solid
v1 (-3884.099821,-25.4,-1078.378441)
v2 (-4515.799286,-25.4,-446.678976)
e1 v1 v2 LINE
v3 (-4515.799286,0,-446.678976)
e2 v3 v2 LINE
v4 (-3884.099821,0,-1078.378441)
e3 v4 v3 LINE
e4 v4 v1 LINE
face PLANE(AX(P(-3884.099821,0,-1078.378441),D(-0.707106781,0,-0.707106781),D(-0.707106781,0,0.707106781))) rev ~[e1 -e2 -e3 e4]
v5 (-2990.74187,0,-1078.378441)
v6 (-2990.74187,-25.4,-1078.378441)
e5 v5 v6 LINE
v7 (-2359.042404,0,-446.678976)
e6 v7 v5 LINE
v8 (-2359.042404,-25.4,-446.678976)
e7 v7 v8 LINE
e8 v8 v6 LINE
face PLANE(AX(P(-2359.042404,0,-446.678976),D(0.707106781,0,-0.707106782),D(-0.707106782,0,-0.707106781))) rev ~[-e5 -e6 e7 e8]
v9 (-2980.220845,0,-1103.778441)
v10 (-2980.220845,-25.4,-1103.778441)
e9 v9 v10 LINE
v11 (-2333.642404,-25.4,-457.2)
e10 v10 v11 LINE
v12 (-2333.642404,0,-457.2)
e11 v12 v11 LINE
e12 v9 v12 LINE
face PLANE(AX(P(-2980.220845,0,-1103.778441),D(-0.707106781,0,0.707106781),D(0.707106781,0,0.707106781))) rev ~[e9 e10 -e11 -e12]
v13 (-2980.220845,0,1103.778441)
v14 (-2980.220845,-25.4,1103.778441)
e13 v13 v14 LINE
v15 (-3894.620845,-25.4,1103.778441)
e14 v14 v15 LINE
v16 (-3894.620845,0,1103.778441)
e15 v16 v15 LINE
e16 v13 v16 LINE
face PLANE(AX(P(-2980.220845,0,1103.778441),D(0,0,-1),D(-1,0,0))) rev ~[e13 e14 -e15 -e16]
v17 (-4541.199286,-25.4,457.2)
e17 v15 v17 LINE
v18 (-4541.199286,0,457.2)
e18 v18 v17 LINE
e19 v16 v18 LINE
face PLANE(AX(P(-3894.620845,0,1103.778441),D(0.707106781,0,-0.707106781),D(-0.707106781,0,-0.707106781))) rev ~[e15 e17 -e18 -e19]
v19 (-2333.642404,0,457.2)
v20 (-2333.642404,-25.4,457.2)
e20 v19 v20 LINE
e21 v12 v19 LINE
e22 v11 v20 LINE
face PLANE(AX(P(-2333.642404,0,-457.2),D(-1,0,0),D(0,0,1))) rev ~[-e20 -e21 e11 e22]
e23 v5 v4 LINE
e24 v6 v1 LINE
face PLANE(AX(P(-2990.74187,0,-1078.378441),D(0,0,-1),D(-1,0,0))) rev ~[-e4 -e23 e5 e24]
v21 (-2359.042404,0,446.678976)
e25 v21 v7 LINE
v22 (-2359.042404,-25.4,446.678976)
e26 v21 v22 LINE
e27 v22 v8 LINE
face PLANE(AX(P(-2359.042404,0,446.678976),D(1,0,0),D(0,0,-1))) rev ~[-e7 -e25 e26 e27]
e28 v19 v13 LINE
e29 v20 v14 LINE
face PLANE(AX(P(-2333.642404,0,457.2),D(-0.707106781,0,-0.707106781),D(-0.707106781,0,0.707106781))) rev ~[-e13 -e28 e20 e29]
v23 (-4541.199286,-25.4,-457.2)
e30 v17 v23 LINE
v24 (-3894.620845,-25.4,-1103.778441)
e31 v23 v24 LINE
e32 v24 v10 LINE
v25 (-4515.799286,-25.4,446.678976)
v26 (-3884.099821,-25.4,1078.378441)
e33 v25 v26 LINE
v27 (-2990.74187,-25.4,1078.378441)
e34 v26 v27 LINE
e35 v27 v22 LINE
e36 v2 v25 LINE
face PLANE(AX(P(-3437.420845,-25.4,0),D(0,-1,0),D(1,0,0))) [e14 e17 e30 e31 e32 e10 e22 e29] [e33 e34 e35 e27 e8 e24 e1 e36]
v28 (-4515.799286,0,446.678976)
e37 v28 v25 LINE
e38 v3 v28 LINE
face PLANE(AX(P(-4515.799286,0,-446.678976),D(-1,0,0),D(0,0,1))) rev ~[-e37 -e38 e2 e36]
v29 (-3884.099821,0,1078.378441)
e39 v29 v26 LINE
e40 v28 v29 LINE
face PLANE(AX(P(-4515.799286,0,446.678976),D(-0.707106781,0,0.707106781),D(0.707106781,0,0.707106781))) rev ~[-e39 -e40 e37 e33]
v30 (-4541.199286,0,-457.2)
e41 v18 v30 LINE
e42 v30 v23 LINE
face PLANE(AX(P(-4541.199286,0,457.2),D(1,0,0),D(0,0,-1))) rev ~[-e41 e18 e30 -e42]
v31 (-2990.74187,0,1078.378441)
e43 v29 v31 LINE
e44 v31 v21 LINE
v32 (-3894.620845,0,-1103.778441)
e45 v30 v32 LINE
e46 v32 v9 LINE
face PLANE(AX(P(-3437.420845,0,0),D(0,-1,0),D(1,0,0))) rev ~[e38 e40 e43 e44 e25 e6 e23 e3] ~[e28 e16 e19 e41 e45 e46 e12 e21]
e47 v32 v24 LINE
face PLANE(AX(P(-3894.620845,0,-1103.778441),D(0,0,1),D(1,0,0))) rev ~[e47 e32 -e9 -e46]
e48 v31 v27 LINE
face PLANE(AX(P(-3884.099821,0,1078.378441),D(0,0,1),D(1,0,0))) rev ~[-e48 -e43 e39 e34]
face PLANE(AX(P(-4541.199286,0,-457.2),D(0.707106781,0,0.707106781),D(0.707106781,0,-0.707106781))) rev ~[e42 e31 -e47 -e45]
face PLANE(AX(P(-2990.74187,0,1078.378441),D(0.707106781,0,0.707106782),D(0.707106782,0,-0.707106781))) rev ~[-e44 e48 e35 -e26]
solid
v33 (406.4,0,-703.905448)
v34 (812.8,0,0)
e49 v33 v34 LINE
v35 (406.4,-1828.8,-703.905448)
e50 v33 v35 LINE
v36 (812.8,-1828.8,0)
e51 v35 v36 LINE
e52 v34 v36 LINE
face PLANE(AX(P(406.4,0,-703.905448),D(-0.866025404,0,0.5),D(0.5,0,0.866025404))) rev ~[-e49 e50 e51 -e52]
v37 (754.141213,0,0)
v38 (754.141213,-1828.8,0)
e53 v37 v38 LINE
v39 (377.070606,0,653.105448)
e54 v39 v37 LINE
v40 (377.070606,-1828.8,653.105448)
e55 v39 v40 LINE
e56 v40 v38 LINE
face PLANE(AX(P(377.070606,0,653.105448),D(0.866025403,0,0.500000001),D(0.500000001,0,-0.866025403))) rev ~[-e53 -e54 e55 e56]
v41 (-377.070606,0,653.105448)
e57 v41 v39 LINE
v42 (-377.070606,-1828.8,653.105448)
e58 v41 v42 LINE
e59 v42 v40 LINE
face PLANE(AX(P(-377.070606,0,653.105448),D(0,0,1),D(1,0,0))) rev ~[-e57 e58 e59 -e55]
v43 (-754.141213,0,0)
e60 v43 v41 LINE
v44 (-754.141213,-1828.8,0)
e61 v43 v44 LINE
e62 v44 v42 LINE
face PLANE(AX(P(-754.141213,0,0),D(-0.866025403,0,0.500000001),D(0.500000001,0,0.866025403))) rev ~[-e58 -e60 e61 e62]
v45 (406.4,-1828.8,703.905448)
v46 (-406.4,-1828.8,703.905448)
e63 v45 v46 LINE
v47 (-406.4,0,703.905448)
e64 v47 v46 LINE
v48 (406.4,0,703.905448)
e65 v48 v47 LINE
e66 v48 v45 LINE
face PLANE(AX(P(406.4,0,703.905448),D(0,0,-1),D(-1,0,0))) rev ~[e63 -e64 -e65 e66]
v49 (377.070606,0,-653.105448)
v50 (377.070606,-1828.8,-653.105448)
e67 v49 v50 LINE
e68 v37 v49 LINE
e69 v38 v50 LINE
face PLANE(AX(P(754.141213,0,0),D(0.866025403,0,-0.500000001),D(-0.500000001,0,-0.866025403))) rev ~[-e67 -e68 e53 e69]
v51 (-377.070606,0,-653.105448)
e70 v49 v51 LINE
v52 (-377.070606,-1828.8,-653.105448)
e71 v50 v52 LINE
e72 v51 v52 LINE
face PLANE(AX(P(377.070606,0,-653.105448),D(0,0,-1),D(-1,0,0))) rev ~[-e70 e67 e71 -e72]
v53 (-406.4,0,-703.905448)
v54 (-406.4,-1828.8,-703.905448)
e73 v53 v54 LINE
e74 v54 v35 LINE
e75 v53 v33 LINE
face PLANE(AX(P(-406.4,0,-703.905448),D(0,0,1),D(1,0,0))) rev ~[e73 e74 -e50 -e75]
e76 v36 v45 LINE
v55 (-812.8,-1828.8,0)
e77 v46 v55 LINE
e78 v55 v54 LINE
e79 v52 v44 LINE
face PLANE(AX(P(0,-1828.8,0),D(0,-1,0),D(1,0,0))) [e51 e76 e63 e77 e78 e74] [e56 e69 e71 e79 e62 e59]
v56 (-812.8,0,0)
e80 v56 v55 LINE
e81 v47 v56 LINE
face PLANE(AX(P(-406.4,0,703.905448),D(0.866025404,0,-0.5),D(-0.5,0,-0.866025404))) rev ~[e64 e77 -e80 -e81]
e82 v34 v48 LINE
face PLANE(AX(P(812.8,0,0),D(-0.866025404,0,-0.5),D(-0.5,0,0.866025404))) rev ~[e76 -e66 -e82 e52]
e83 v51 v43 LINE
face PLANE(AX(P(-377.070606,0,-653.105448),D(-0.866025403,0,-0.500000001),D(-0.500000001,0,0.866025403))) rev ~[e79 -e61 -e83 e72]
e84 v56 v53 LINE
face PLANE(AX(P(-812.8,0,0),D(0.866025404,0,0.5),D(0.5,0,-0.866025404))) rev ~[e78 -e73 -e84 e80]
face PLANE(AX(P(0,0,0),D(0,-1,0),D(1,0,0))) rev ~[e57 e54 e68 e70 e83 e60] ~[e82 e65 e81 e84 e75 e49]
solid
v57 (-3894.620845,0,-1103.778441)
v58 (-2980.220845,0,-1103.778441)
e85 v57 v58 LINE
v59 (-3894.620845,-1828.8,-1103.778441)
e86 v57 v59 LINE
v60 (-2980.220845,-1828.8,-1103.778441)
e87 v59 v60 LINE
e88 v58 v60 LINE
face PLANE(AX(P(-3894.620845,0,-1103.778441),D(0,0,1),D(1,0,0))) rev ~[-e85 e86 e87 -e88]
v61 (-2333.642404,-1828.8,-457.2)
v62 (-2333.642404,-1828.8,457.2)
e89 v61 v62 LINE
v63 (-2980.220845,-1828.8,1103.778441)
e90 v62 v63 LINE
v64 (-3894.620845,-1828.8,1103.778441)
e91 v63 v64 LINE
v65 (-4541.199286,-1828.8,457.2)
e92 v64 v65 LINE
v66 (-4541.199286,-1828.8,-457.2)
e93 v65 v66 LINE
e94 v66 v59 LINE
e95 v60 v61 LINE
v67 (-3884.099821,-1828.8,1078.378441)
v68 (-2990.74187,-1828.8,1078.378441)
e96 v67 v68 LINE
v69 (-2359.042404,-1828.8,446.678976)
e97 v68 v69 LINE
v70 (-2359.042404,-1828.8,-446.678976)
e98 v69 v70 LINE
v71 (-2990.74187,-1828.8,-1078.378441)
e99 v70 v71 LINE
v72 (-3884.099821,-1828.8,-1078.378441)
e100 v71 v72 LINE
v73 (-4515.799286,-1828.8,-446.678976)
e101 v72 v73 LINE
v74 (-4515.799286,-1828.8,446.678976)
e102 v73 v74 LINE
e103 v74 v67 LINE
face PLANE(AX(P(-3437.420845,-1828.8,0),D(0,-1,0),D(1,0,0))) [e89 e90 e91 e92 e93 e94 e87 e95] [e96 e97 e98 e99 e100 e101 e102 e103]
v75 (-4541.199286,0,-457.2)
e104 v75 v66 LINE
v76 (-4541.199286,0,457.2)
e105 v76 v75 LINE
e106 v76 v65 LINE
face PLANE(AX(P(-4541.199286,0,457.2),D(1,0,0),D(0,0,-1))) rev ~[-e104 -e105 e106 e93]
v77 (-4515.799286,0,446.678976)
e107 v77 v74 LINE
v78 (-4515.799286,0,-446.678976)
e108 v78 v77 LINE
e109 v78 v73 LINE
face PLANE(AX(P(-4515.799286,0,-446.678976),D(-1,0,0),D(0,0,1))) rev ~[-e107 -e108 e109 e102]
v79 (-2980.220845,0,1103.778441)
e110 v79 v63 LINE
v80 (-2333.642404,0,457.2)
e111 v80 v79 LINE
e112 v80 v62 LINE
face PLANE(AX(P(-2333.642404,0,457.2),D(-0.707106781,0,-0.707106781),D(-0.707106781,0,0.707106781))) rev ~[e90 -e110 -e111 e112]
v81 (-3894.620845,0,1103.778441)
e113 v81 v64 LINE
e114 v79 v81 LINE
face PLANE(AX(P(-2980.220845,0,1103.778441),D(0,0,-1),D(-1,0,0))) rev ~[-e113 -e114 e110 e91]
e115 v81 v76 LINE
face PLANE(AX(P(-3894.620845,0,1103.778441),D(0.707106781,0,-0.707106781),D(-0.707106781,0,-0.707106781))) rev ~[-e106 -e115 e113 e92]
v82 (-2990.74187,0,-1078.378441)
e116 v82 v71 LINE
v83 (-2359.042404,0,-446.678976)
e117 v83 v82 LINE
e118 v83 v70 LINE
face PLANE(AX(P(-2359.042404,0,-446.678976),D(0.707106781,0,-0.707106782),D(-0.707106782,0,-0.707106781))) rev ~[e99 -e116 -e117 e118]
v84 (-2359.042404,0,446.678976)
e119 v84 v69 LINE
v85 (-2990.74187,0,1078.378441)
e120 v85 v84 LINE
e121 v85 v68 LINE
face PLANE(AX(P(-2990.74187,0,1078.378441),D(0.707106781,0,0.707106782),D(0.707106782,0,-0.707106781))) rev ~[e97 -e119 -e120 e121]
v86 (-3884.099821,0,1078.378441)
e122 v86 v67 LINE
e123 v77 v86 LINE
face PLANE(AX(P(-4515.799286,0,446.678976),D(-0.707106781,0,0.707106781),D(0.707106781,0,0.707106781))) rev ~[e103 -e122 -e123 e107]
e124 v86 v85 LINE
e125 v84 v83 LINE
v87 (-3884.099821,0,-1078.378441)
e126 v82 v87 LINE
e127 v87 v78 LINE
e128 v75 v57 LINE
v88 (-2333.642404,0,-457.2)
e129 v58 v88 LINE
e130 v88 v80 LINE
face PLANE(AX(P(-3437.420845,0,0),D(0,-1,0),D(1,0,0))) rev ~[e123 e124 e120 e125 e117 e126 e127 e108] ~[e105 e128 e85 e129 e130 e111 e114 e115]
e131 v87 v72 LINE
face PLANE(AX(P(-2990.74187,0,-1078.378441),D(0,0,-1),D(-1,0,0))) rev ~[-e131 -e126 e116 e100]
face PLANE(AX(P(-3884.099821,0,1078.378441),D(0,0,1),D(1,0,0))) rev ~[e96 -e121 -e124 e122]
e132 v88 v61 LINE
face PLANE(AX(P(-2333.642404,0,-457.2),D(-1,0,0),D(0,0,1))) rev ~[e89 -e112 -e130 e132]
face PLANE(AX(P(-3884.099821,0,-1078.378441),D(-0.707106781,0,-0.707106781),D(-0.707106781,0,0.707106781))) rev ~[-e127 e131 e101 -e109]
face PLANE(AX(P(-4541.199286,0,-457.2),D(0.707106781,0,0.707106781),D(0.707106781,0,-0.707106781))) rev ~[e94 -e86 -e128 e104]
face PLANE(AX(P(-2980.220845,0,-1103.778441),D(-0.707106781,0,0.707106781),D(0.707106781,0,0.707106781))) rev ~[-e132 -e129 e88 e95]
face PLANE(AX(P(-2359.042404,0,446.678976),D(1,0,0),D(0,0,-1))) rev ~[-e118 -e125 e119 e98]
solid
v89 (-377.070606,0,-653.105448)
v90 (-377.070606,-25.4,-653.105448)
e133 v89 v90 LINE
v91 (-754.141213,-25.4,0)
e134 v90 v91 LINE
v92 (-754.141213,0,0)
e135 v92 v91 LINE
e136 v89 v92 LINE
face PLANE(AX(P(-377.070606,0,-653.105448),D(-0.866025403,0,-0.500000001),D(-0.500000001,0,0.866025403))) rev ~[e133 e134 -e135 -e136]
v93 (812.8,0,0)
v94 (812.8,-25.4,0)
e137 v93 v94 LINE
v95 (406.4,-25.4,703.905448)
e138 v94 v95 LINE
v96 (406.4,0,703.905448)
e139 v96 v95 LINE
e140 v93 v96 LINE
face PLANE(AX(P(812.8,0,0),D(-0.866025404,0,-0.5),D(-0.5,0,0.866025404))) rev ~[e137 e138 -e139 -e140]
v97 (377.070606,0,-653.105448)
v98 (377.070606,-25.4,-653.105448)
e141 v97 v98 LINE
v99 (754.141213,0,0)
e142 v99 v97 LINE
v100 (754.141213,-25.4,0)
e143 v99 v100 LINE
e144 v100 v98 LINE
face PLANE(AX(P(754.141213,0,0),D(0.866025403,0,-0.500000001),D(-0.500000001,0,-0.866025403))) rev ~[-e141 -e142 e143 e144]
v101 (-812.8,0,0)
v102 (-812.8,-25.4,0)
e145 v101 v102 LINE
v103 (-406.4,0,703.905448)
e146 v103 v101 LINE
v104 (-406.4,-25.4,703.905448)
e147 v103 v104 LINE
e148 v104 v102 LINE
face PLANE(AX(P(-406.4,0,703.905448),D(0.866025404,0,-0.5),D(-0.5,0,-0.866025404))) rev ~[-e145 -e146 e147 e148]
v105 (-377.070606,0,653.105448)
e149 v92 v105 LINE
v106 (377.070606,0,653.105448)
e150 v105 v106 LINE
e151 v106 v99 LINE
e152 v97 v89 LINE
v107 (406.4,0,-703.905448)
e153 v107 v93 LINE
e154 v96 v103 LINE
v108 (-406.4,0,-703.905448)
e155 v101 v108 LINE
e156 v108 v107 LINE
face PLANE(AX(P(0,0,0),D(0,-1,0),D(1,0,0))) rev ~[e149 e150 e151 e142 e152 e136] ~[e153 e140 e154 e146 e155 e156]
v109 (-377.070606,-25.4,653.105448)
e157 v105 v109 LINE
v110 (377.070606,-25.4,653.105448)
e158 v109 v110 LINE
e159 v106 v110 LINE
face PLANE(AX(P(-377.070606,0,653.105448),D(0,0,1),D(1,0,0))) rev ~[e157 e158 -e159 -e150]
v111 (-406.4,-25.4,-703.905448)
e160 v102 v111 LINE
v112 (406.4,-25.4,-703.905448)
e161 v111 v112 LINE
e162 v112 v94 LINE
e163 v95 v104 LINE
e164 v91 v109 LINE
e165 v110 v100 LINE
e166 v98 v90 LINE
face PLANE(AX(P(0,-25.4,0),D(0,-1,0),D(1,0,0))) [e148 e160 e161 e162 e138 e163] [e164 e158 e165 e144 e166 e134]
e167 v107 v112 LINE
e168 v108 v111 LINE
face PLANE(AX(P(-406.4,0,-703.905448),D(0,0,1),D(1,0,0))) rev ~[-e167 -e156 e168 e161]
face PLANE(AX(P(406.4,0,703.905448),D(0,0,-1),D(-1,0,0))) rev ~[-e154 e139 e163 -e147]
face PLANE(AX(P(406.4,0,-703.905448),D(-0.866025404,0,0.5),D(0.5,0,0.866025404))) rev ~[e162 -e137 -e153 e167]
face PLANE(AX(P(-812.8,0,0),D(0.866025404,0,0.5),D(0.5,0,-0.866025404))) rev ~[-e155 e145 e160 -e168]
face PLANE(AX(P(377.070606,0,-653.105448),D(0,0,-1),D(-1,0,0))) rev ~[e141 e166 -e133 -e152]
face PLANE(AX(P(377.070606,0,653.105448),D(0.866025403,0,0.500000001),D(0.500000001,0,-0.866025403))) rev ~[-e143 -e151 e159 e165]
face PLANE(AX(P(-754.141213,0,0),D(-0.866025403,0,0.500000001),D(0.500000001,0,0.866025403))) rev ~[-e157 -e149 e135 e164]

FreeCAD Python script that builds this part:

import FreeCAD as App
import Part
import Sketcher
Q = App.Units.Quantity


def add_polygon(sketch, points):
    """Adds a closed chain of lines whose ends are joined by coincident constraints."""
    first, n = sketch.GeometryCount, len(points)
    for a, b in zip(points, points[1:] + points[:1]):
        sketch.addGeometry(Part.LineSegment(App.Vector(*a, 0), App.Vector(*b, 0)), False)
    for i in range(n):
        sketch.addConstraint(Sketcher.Constraint("Coincident", first + i, 2, first + (i + 1) % n, 1))

doc = App.newDocument("Part")
params = doc.addObject("Spreadsheet::Sheet", "Params")
for row, (alias, value) in enumerate([
    ("sketch1_width", "32 in"),
    ("sketch1_width2", "36 in"),
    ("sketch1_length", "32 in"),
    ("sketch1_length2", "36 in"),
    ("pad1_length", "72 in"),
    ("sketch2_width", "32 in"),
    ("sketch2_width2", "36 in"),
    ("sketch2_length", "32 in"),
    ("sketch2_length2", "36 in"),
    ("pad2_length", "1 in"),
], start=1):
    params.set(f"A{row}", alias)
    params.set(f"B{row}", "=" + value)
    params.setAlias(f"B{row}", alias)

body = doc.addObject("PartDesign::Body", "Body")
body.AllowCompound = True

# Sketch on XZ plane
sketch1 = doc.addObject("Sketcher::SketchObject", "Sketch")
body.addObject(sketch1)
sketch1.AttachmentSupport = (doc.XZ_Plane, [""])
sketch1.MapMode = "FlatFace"
add_polygon(sketch1, [(406, -704), (813, 0), (406, 704), (-406, 704), (-813, 0), (-406, -704)])  # lines 0-5
add_polygon(sketch1, [(377, -653), (-377, -653), (-754, 0), (-377, 653), (377, 653), (754, 0)])  # lines 6-11
add_polygon(sketch1, [(-3895, -1104), (-2980, -1104), (-2334, -457), (-2334, 457), (-2980, 1104), (-3895, 1104), (-4541, 457), (-4541, -457)])  # lines 12-19
add_polygon(sketch1, [(-3884, -1078), (-4516, -447), (-4516, 447), (-3884, 1078), (-2991, 1078), (-2359, 447), (-2359, -447), (-2991, -1078)])  # lines 20-27
sketch1.addConstraint(Sketcher.Constraint("Horizontal", 2))
sketch1.addConstraint(Sketcher.Constraint("Horizontal", 5))
sketch1.addConstraint(Sketcher.Constraint("Horizontal", 6))
sketch1.addConstraint(Sketcher.Constraint("Horizontal", 9))
sketch1.addConstraint(Sketcher.Constraint("Horizontal", 12))
sketch1.addConstraint(Sketcher.Constraint("Vertical", 14))
sketch1.addConstraint(Sketcher.Constraint("Horizontal", 16))
sketch1.addConstraint(Sketcher.Constraint("Vertical", 18))
sketch1.addConstraint(Sketcher.Constraint("Vertical", 21))
sketch1.addConstraint(Sketcher.Constraint("Horizontal", 23))
sketch1.addConstraint(Sketcher.Constraint("Vertical", 25))
sketch1.addConstraint(Sketcher.Constraint("Horizontal", 27))
sketch1.addConstraint(Sketcher.Constraint("Symmetric", 0, 2, 3, 2, -1, 1))
sketch1.addConstraint(Sketcher.Constraint("Symmetric", 1, 2, 4, 2, -1, 1))
sketch1.addConstraint(Sketcher.Constraint("Symmetric", 6, 2, 9, 2, -1, 1))
sketch1.addConstraint(Sketcher.Constraint("Symmetric", 7, 2, 10, 2, -1, 1))
sketch1.addConstraint(Sketcher.Constraint("Symmetric", 12, 2, 15, 2, -1))
sketch1.addConstraint(Sketcher.Constraint("Symmetric", 23, 2, 26, 2, -1))
sketch1.addConstraint(Sketcher.Constraint("PointOnObject", 0, 2, -1))
sketch1.addConstraint(Sketcher.Constraint("PointOnObject", 7, 2, -1))
sketch1.addConstraint(Sketcher.Constraint("Parallel", 0, 3))
sketch1.addConstraint(Sketcher.Constraint("Parallel", 4, 7))
sketch1.addConstraint(Sketcher.Constraint("Parallel", 3, 8))
sketch1.addConstraint(Sketcher.Constraint("Parallel", 8, 11))
sketch1.addConstraint(Sketcher.Constraint("Perpendicular", 13, 15))
sketch1.addConstraint(Sketcher.Constraint("Perpendicular", 15, 17))
sketch1.addConstraint(Sketcher.Constraint("Perpendicular", 17, 19))
sketch1.addConstraint(Sketcher.Constraint("Parallel", 19, 20))
sketch1.addConstraint(Sketcher.Constraint("Perpendicular", 20, 22))
sketch1.addConstraint(Sketcher.Constraint("Perpendicular", 22, 24))
sketch1.addConstraint(Sketcher.Constraint("Perpendicular", 24, 26))
sketch1.addConstraint(Sketcher.Constraint("Horizontal", 14, 2, 17, 2))
sketch1.addConstraint(Sketcher.Constraint("Horizontal", 13, 2, 18, 2))
sketch1.addConstraint(Sketcher.Constraint("Horizontal", 21, 2, 24, 2))
sketch1.addConstraint(Sketcher.Constraint("Horizontal", 20, 2, 25, 2))
sketch1.addConstraint(Sketcher.Constraint("Vertical", 2, 2, 4, 2))
sketch1.addConstraint(Sketcher.Constraint("Vertical", 16, 2, 19, 2))
sketch1.addConstraint(Sketcher.Constraint("Equal", 16, 14))
sketch1.addConstraint(Sketcher.Constraint("Equal", 27, 21))
sketch1.addConstraint(Sketcher.Constraint("DistanceX", 2, 2, 2, 1, Q("32 in")))
sketch1.addConstraint(Sketcher.Constraint("DistanceX", 12, 1, 12, 2, Q("36 in")))
sketch1.addConstraint(Sketcher.Constraint("Distance", 0, Q("32 in")))
sketch1.addConstraint(Sketcher.Constraint("Distance", 13, Q("36 in")))
sketch1.addConstraint(Sketcher.Constraint("DistanceX", -1, 1, 0, 2, Q("32 in")))
sketch1.addConstraint(Sketcher.Constraint("DistanceY", 4, 2, 6, 2, Q("2 in")))
sketch1.addConstraint(Sketcher.Constraint("DistanceX", 18, 2, 20, 2, Q("1 in")))
sketch1.addConstraint(Sketcher.Constraint("DistanceY", 22, 2, 16, 2, Q("1 in")))
sketch1.addConstraint(Sketcher.Constraint("DistanceX", 6, 2, 6, 1, 754.141212))
sketch1.addConstraint(Sketcher.Constraint("DistanceX", 23, 1, 23, 2, 893.357951))
sketch1.addConstraint(Sketcher.Constraint("DistanceX", 13, 2, 6, 2, 1956.571798))
sketch1.setExpression("Constraints[67]", "Params.sketch1_width")
sketch1.setExpression("Constraints[68]", "Params.sketch1_width2")
sketch1.setExpression("Constraints[69]", "Params.sketch1_length")
sketch1.setExpression("Constraints[70]", "Params.sketch1_length2")
pad1 = doc.addObject("PartDesign::Pad", "Pad")
body.addObject(pad1)
pad1.Profile = sketch1
pad1.setExpression("Length", "Params.pad1_length")
body2 = doc.addObject("PartDesign::Body", "Body001")
body2.AllowCompound = True

# Sketch on XZ plane
sketch2 = doc.addObject("Sketcher::SketchObject", "Sketch001")
body2.addObject(sketch2)
sketch2.AttachmentSupport = (doc.getObject("XZ_Plane001"), [""])
sketch2.MapMode = "FlatFace"
add_polygon(sketch2, [(406, -704), (813, 0), (406, 704), (-406, 704), (-813, 0), (-406, -704)])  # lines 0-5
add_polygon(sketch2, [(377, -653), (-377, -653), (-754, 0), (-377, 653), (377, 653), (754, 0)])  # lines 6-11
add_polygon(sketch2, [(-3895, -1104), (-2980, -1104), (-2334, -457), (-2334, 457), (-2980, 1104), (-3895, 1104), (-4541, 457), (-4541, -457)])  # lines 12-19
add_polygon(sketch2, [(-3884, -1078), (-4516, -447), (-4516, 447), (-3884, 1078), (-2991, 1078), (-2359, 447), (-2359, -447), (-2991, -1078)])  # lines 20-27
sketch2.addConstraint(Sketcher.Constraint("Horizontal", 2))
sketch2.addConstraint(Sketcher.Constraint("Horizontal", 5))
sketch2.addConstraint(Sketcher.Constraint("Horizontal", 6))
sketch2.addConstraint(Sketcher.Constraint("Horizontal", 9))
sketch2.addConstraint(Sketcher.Constraint("Horizontal", 12))
sketch2.addConstraint(Sketcher.Constraint("Vertical", 14))
sketch2.addConstraint(Sketcher.Constraint("Horizontal", 16))
sketch2.addConstraint(Sketcher.Constraint("Vertical", 18))
sketch2.addConstraint(Sketcher.Constraint("Vertical", 21))
sketch2.addConstraint(Sketcher.Constraint("Horizontal", 23))
sketch2.addConstraint(Sketcher.Constraint("Vertical", 25))
sketch2.addConstraint(Sketcher.Constraint("Horizontal", 27))
sketch2.addConstraint(Sketcher.Constraint("Symmetric", 0, 2, 3, 2, -1, 1))
sketch2.addConstraint(Sketcher.Constraint("Symmetric", 1, 2, 4, 2, -1, 1))
sketch2.addConstraint(Sketcher.Constraint("Symmetric", 6, 2, 9, 2, -1, 1))
sketch2.addConstraint(Sketcher.Constraint("Symmetric", 7, 2, 10, 2, -1, 1))
sketch2.addConstraint(Sketcher.Constraint("Symmetric", 12, 2, 15, 2, -1))
sketch2.addConstraint(Sketcher.Constraint("Symmetric", 23, 2, 26, 2, -1))
sketch2.addConstraint(Sketcher.Constraint("PointOnObject", 0, 2, -1))
sketch2.addConstraint(Sketcher.Constraint("PointOnObject", 7, 2, -1))
sketch2.addConstraint(Sketcher.Constraint("Parallel", 0, 3))
sketch2.addConstraint(Sketcher.Constraint("Parallel", 4, 7))
sketch2.addConstraint(Sketcher.Constraint("Parallel", 3, 8))
sketch2.addConstraint(Sketcher.Constraint("Parallel", 8, 11))
sketch2.addConstraint(Sketcher.Constraint("Perpendicular", 13, 15))
sketch2.addConstraint(Sketcher.Constraint("Perpendicular", 15, 17))
sketch2.addConstraint(Sketcher.Constraint("Perpendicular", 17, 19))
sketch2.addConstraint(Sketcher.Constraint("Parallel", 19, 20))
sketch2.addConstraint(Sketcher.Constraint("Perpendicular", 20, 22))
sketch2.addConstraint(Sketcher.Constraint("Perpendicular", 22, 24))
sketch2.addConstraint(Sketcher.Constraint("Perpendicular", 24, 26))
sketch2.addConstraint(Sketcher.Constraint("Horizontal", 14, 2, 17, 2))
sketch2.addConstraint(Sketcher.Constraint("Horizontal", 13, 2, 18, 2))
sketch2.addConstraint(Sketcher.Constraint("Horizontal", 21, 2, 24, 2))
sketch2.addConstraint(Sketcher.Constraint("Horizontal", 20, 2, 25, 2))
sketch2.addConstraint(Sketcher.Constraint("Vertical", 2, 2, 4, 2))
sketch2.addConstraint(Sketcher.Constraint("Vertical", 16, 2, 19, 2))
sketch2.addConstraint(Sketcher.Constraint("Equal", 16, 14))
sketch2.addConstraint(Sketcher.Constraint("Equal", 27, 21))
sketch2.addConstraint(Sketcher.Constraint("DistanceX", 2, 2, 2, 1, Q("32 in")))
sketch2.addConstraint(Sketcher.Constraint("DistanceX", 12, 1, 12, 2, Q("36 in")))
sketch2.addConstraint(Sketcher.Constraint("Distance", 0, Q("32 in")))
sketch2.addConstraint(Sketcher.Constraint("Distance", 13, Q("36 in")))
sketch2.addConstraint(Sketcher.Constraint("DistanceX", -1, 1, 0, 2, Q("32 in")))
sketch2.addConstraint(Sketcher.Constraint("DistanceY", 4, 2, 6, 2, Q("2 in")))
sketch2.addConstraint(Sketcher.Constraint("DistanceX", 18, 2, 20, 2, Q("1 in")))
sketch2.addConstraint(Sketcher.Constraint("DistanceY", 22, 2, 16, 2, Q("1 in")))
sketch2.addConstraint(Sketcher.Constraint("DistanceX", 6, 2, 6, 1, 754.141212))
sketch2.addConstraint(Sketcher.Constraint("DistanceX", 23, 1, 23, 2, 893.357951))
sketch2.addConstraint(Sketcher.Constraint("DistanceX", 13, 2, 6, 2, 1956.571798))
sketch2.setExpression("Constraints[67]", "Params.sketch2_width")
sketch2.setExpression("Constraints[68]", "Params.sketch2_width2")
sketch2.setExpression("Constraints[69]", "Params.sketch2_length")
sketch2.setExpression("Constraints[70]", "Params.sketch2_length2")
pad2 = doc.addObject("PartDesign::Pad", "Pad001")
body2.addObject(pad2)
pad2.Profile = sketch2
pad2.setExpression("Length", "Params.pad2_length")

doc.recompute()
